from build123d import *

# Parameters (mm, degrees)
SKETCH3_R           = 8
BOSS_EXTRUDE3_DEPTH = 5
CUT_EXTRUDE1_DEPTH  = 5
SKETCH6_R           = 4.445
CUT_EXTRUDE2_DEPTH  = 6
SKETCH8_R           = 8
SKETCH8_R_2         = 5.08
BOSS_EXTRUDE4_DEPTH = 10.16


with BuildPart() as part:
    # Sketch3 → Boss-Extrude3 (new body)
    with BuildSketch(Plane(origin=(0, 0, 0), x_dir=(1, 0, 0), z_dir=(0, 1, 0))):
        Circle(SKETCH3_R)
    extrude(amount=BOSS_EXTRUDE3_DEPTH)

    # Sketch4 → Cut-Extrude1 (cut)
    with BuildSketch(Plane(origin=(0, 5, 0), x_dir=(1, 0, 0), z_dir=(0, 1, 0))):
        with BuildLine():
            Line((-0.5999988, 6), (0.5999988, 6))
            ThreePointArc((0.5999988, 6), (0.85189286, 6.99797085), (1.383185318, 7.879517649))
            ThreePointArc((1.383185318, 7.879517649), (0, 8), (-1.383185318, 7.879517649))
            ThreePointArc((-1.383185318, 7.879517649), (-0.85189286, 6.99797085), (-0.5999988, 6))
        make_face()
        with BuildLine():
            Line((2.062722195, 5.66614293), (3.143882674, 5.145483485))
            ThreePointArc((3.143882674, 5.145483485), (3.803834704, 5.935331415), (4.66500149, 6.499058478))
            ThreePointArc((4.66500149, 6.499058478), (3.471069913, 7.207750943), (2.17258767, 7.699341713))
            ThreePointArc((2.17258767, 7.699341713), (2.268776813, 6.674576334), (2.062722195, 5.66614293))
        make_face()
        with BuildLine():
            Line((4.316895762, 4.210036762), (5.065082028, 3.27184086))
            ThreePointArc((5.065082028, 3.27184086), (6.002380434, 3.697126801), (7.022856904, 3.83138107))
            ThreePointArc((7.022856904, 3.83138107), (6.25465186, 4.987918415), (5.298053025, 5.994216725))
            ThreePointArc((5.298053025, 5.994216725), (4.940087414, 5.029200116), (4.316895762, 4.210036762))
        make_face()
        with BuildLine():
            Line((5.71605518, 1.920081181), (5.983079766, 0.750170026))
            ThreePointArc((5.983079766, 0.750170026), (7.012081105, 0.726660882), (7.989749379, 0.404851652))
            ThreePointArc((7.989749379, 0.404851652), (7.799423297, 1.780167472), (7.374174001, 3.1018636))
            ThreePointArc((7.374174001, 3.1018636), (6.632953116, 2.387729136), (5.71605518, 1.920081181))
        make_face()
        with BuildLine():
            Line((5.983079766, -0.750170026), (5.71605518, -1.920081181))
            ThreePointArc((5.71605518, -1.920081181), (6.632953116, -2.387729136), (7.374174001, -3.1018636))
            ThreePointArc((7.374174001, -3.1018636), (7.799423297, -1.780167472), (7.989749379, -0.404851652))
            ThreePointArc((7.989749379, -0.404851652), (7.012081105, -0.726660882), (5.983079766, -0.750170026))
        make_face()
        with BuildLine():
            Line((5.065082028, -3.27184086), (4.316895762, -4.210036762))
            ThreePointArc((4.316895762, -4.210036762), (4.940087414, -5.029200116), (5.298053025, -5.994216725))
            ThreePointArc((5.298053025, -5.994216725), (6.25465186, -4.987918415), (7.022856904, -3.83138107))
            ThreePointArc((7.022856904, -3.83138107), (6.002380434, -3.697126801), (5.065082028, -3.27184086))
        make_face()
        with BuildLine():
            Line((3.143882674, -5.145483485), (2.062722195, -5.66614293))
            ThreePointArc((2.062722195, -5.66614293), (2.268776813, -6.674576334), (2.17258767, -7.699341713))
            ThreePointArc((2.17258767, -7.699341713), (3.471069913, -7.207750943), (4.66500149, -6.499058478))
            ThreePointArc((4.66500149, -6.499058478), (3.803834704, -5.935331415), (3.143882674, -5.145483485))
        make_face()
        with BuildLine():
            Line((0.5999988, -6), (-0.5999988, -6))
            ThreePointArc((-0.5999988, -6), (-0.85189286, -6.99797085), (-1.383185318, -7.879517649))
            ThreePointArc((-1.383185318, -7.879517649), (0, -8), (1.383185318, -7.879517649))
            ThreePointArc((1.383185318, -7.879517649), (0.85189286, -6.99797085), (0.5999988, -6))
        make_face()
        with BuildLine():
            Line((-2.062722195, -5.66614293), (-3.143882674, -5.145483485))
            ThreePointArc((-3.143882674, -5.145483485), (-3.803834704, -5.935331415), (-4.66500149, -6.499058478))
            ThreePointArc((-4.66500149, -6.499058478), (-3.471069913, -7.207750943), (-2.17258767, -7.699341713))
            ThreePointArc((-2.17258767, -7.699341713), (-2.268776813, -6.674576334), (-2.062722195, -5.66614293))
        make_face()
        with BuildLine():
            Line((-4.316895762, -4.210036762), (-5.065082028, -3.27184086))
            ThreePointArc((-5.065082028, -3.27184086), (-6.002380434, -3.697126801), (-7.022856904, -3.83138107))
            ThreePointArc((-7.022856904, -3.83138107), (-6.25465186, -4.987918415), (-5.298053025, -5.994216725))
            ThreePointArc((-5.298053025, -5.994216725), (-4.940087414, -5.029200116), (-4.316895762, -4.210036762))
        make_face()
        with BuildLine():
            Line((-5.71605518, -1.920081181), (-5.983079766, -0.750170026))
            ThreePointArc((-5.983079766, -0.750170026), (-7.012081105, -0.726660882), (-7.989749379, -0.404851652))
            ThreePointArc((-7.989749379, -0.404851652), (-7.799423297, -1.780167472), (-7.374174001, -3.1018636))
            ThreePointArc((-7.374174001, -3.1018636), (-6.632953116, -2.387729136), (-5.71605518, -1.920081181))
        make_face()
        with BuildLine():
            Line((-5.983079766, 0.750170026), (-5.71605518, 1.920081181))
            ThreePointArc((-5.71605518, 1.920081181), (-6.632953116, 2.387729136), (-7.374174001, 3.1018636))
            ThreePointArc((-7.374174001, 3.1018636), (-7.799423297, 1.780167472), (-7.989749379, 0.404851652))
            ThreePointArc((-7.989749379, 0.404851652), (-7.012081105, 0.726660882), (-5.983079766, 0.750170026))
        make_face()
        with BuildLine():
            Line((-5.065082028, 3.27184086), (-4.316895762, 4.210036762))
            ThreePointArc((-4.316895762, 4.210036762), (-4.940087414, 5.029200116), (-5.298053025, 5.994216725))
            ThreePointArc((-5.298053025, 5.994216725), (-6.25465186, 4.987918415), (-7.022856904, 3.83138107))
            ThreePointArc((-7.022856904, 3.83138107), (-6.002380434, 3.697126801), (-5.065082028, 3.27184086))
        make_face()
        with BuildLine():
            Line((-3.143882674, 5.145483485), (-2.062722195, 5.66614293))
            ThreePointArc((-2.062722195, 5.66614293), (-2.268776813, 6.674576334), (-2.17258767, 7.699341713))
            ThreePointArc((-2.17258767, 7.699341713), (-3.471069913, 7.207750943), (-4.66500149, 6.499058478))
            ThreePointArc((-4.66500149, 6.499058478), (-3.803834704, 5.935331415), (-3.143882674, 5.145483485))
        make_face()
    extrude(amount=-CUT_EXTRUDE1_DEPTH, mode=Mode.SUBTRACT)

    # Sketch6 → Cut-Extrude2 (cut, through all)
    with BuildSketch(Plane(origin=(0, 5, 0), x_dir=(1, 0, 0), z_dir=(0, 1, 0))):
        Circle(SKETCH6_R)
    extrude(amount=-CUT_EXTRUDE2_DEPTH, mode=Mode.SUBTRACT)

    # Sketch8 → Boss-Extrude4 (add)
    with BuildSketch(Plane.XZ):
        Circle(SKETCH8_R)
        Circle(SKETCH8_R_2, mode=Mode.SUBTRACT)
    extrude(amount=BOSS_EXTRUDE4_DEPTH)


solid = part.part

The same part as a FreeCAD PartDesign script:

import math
import FreeCAD as App
import Part
import Sketcher

V = App.Vector

doc = App.newDocument("Part")
body = doc.addObject("PartDesign::Body", "Body")

# Sketch on XZ plane
sketch1 = doc.addObject("Sketcher::SketchObject", "Sketch")
body.addObject(sketch1)
sketch1.AttachmentSupport = (doc.XZ_Plane, [""])
sketch1.MapMode = "FlatFace"
sketch1.addGeometry(Part.Circle(V(0, 0, 0), V(0, 0, 1), 8), False)
sketch1.addConstraint([
    Sketcher.Constraint("Coincident", 0, 3, -1, 1),
    Sketcher.Constraint("Diameter", 0, 16.0),
])
pad1 = doc.addObject("PartDesign::Pad", "Pad")
body.addObject(pad1)
pad1.Profile = sketch1
pad1.Length = 5
pad1.Reversed = True

# Sketch on XZ plane
sketch2 = doc.addObject("Sketcher::SketchObject", "Sketch001")
body.addObject(sketch2)
sketch2.AttachmentSupport = (doc.XZ_Plane, [""])
sketch2.MapMode = "FlatFace"
sketch2.AttachmentOffset = App.Placement(V(0, 0, -5), App.Rotation())
sketch2.addGeometry([
    Part.LineSegment(V(-0.599999, -6, 0), V(0.599999, -6, 0)),  # 0
    Part.ArcOfCircle(Part.Circle(V(4.082629, -5.651738, 0), V(0, 0, 1), 3.5), math.radians(-174.289418), math.radians(-140.468038)),  # 1
    Part.ArcOfCircle(Part.Circle(V(0, 0, 0), V(0, 0, 1), 8), math.radians(-99.956367), math.radians(-80.043633)),  # 2
    Part.ArcOfCircle(Part.Circle(V(-4.082629, -5.651738, 0), V(0, 0, 1), 3.5), math.radians(-39.531962), math.radians(-5.710582)),  # 3
    Part.LineSegment(V(2.062722, -5.666143, 0), V(3.143883, -5.145483, 0)),  # 4
    Part.ArcOfCircle(Part.Circle(V(6.130519, -3.320653, 0), V(0, 0, 1), 3.5), math.radians(-148.575132), math.radians(-114.753752)),  # 5
    Part.ArcOfCircle(Part.Circle(V(0, 0, 0), V(0, 0, 1), 8), math.radians(-74.242082), math.radians(-54.329347)),  # 6
    Part.ArcOfCircle(Part.Circle(V(-1.226125, -6.863426, 0), V(0, 0, 1), 3.5), math.radians(-13.817676), math.radians(20.003704)),  # 7
    Part.LineSegment(V(4.316896, -4.210037, 0), V(5.065082, -3.271841, 0)),  # 8
    Part.ArcOfCircle(Part.Circle(V(6.964184, -0.331873, 0), V(0, 0, 1), 3.5), math.radians(-122.860847), math.radians(-89.039467)),  # 9
    Part.ArcOfCircle(Part.Circle(V(0, 0, 0), V(0, 0, 1), 8), math.radians(-48.527796), math.radians(-28.615061)),  # 10
    Part.ArcOfCircle(Part.Circle(V(1.873229, -6.715729, 0), V(0, 0, 1), 3.5), math.radians(11.89661), math.radians(45.71799)),  # 11
    Part.LineSegment(V(5.716055, -1.920081, 0), V(5.98308, -0.75017, 0)),  # 12
    Part.ArcOfCircle(Part.Circle(V(6.418507, 2.722639, 0), V(0, 0, 1), 3.5), math.radians(-97.146561), math.radians(-63.325181)),  # 13
    Part.ArcOfCircle(Part.Circle(V(0, 0, 0), V(0, 0, 1), 8), math.radians(-22.81351), math.radians(-2.900775)),  # 14
    Part.ArcOfCircle(Part.Circle(V(4.601566, -5.237899, 0), V(0, 0, 1), 3.5), math.radians(37.610895), math.radians(71.432275)),  # 15
    Part.LineSegment(V(5.98308, 0.75017, 0), V(5.716055, 1.920081, 0)),  # 16
    Part.ArcOfCircle(Part.Circle(V(4.601566, 5.237899, 0), V(0, 0, 1), 3.5), math.radians(-71.432275), math.radians(-37.610895)),  # 17
    Part.ArcOfCircle(Part.Circle(V(0, 0, 0), V(0, 0, 1), 8), math.radians(2.900775), math.radians(22.81351)),  # 18
    Part.ArcOfCircle(Part.Circle(V(6.418507, -2.722639, 0), V(0, 0, 1), 3.5), math.radians(63.325181), math.radians(97.146561)),  # 19
    Part.LineSegment(V(5.065082, 3.271841, 0), V(4.316896, 4.210037, 0)),  # 20
    Part.ArcOfCircle(Part.Circle(V(1.873229, 6.715729, 0), V(0, 0, 1), 3.5), math.radians(-45.71799), math.radians(-11.89661)),  # 21
    Part.ArcOfCircle(Part.Circle(V(0, 0, 0), V(0, 0, 1), 8), math.radians(28.615061), math.radians(48.527796)),  # 22
    Part.ArcOfCircle(Part.Circle(V(6.964184, 0.331873, 0), V(0, 0, 1), 3.5), math.radians(89.039467), math.radians(122.860847)),  # 23
    Part.LineSegment(V(3.143883, 5.145483, 0), V(2.062722, 5.666143, 0)),  # 24
    Part.ArcOfCircle(Part.Circle(V(-1.226125, 6.863426, 0), V(0, 0, 1), 3.5), math.radians(-20.003704), math.radians(13.817676)),  # 25
    Part.ArcOfCircle(Part.Circle(V(0, 0, 0), V(0, 0, 1), 8), math.radians(54.329347), math.radians(74.242082)),  # 26
    Part.ArcOfCircle(Part.Circle(V(6.130519, 3.320653, 0), V(0, 0, 1), 3.5), math.radians(114.753752), math.radians(148.575132)),  # 27
    Part.LineSegment(V(0.599999, 6, 0), V(-0.599999, 6, 0)),  # 28
    Part.ArcOfCircle(Part.Circle(V(-4.082629, 5.651738, 0), V(0, 0, 1), 3.5), math.radians(5.710582), math.radians(39.531962)),  # 29
    Part.ArcOfCircle(Part.Circle(V(0, 0, 0), V(0, 0, 1), 8), math.radians(80.043633), math.radians(99.956367)),  # 30
    Part.ArcOfCircle(Part.Circle(V(4.082629, 5.651738, 0), V(0, 0, 1), 3.5), math.radians(140.468038), math.radians(174.289418)),  # 31
    Part.LineSegment(V(-2.062722, 5.666143, 0), V(-3.143883, 5.145483, 0)),  # 32
    Part.ArcOfCircle(Part.Circle(V(-6.130519, 3.320653, 0), V(0, 0, 1), 3.5), math.radians(31.424868), math.radians(65.246248)),  # 33
    Part.ArcOfCircle(Part.Circle(V(0, 0, 0), V(0, 0, 1), 8), math.radians(105.757918), math.radians(125.670653)),  # 34
    Part.ArcOfCircle(Part.Circle(V(1.226125, 6.863426, 0), V(0, 0, 1), 3.5), math.radians(166.182324), math.radians(200.003704)),  # 35
    Part.LineSegment(V(-4.316896, 4.210037, 0), V(-5.065082, 3.271841, 0)),  # 36
    Part.ArcOfCircle(Part.Circle(V(-6.964184, 0.331873, 0), V(0, 0, 1), 3.5), math.radians(57.139153), math.radians(90.960533)),  # 37
    Part.ArcOfCircle(Part.Circle(V(0, 0, 0), V(0, 0, 1), 8), math.radians(131.472204), math.radians(151.384939)),  # 38
    Part.ArcOfCircle(Part.Circle(V(-1.873229, 6.715729, 0), V(0, 0, 1), 3.5), math.radians(-168.10339), math.radians(-134.28201)),  # 39
    Part.LineSegment(V(-5.716055, 1.920081, 0), V(-5.98308, 0.75017, 0)),  # 40
    Part.ArcOfCircle(Part.Circle(V(-6.418507, -2.722639, 0), V(0, 0, 1), 3.5), math.radians(82.853439), math.radians(116.674819)),  # 41
    Part.ArcOfCircle(Part.Circle(V(0, 0, 0), V(0, 0, 1), 8), math.radians(157.18649), math.radians(177.099225)),  # 42
    Part.ArcOfCircle(Part.Circle(V(-4.601566, 5.237899, 0), V(0, 0, 1), 3.5), math.radians(-142.389105), math.radians(-108.567725)),  # 43
    Part.LineSegment(V(-5.98308, -0.75017, 0), V(-5.716055, -1.920081, 0)),  # 44
    Part.ArcOfCircle(Part.Circle(V(-4.601566, -5.237899, 0), V(0, 0, 1), 3.5), math.radians(108.567725), math.radians(142.389105)),  # 45
    Part.ArcOfCircle(Part.Circle(V(0, 0, 0), V(0, 0, 1), 8), math.radians(-177.099225), math.radians(-157.18649)),  # 46
    Part.ArcOfCircle(Part.Circle(V(-6.418507, 2.722639, 0), V(0, 0, 1), 3.5), math.radians(-116.674819), math.radians(-82.853439)),  # 47
    Part.LineSegment(V(-5.065082, -3.271841, 0), V(-4.316896, -4.210037, 0)),  # 48
    Part.ArcOfCircle(Part.Circle(V(-1.873229, -6.715729, 0), V(0, 0, 1), 3.5), math.radians(134.28201), math.radians(168.10339)),  # 49
    Part.ArcOfCircle(Part.Circle(V(0, 0, 0), V(0, 0, 1), 8), math.radians(-151.384939), math.radians(-131.472204)),  # 50
    Part.ArcOfCircle(Part.Circle(V(-6.964184, -0.331873, 0), V(0, 0, 1), 3.5), math.radians(-90.960533), math.radians(-57.139153)),  # 51
    Part.LineSegment(V(-3.143883, -5.145483, 0), V(-2.062722, -5.666143, 0)),  # 52
    Part.ArcOfCircle(Part.Circle(V(1.226125, -6.863426, 0), V(0, 0, 1), 3.5), math.radians(159.996296), math.radians(193.817676)),  # 53
    Part.ArcOfCircle(Part.Circle(V(0, 0, 0), V(0, 0, 1), 8), math.radians(-125.670653), math.radians(-105.757918)),  # 54
    Part.ArcOfCircle(Part.Circle(V(-6.130519, -3.320653, 0), V(0, 0, 1), 3.5), math.radians(-65.246248), math.radians(-31.424868)),  # 55
], False)
sketch2.addConstraint([
    Sketcher.Constraint("Coincident", 0, 2, 1, 1),
    Sketcher.Constraint("Coincident", 1, 2, 2, 2),
    Sketcher.Constraint("Coincident", 2, 1, 3, 1),
    Sketcher.Constraint("Coincident", 3, 2, 0, 1),
    Sketcher.Constraint("Coincident", 4, 2, 5, 1),
    Sketcher.Constraint("Coincident", 5, 2, 6, 2),
    Sketcher.Constraint("Coincident", 6, 1, 7, 1),
    Sketcher.Constraint("Coincident", 7, 2, 4, 1),
    Sketcher.Constraint("Coincident", 8, 2, 9, 1),
    Sketcher.Constraint("Coincident", 9, 2, 10, 2),
    Sketcher.Constraint("Coincident", 10, 1, 11, 1),
    Sketcher.Constraint("Coincident", 11, 2, 8, 1),
    Sketcher.Constraint("Coincident", 12, 2, 13, 1),
    Sketcher.Constraint("Coincident", 13, 2, 14, 2),
    Sketcher.Constraint("Coincident", 14, 1, 15, 1),
    Sketcher.Constraint("Coincident", 15, 2, 12, 1),
    Sketcher.Constraint("Coincident", 16, 2, 17, 1),
    Sketcher.Constraint("Coincident", 17, 2, 18, 2),
    Sketcher.Constraint("Coincident", 18, 1, 19, 1),
    Sketcher.Constraint("Coincident", 19, 2, 16, 1),
    Sketcher.Constraint("Coincident", 20, 2, 21, 1),
    Sketcher.Constraint("Coincident", 21, 2, 22, 2),
    Sketcher.Constraint("Coincident", 22, 1, 23, 1),
    Sketcher.Constraint("Coincident", 23, 2, 20, 1),
    Sketcher.Constraint("Coincident", 24, 2, 25, 1),
    Sketcher.Constraint("Coincident", 25, 2, 26, 2),
    Sketcher.Constraint("Coincident", 26, 1, 27, 1),
    Sketcher.Constraint("Coincident", 27, 2, 24, 1),
    Sketcher.Constraint("Coincident", 28, 2, 29, 1),
    Sketcher.Constraint("Coincident", 29, 2, 30, 2),
    Sketcher.Constraint("Coincident", 30, 1, 31, 1),
    Sketcher.Constraint("Coincident", 31, 2, 28, 1),
    Sketcher.Constraint("Coincident", 32, 2, 33, 1),
    Sketcher.Constraint("Coincident", 33, 2, 34, 2),
    Sketcher.Constraint("Coincident", 34, 1, 35, 1),
    Sketcher.Constraint("Coincident", 35, 2, 32, 1),
    Sketcher.Constraint("Coincident", 36, 2, 37, 1),
    Sketcher.Constraint("Coincident", 37, 2, 38, 2),
    Sketcher.Constraint("Coincident", 38, 1, 39, 1),
    Sketcher.Constraint("Coincident", 39, 2, 36, 1),
    Sketcher.Constraint("Coincident", 40, 2, 41, 1),
    Sketcher.Constraint("Coincident", 41, 2, 42, 2),
    Sketcher.Constraint("Coincident", 42, 1, 43, 1),
    Sketcher.Constraint("Coincident", 43, 2, 40, 1),
    Sketcher.Constraint("Coincident", 44, 2, 45, 1),
    Sketcher.Constraint("Coincident", 45, 2, 46, 2),
    Sketcher.Constraint("Coincident", 46, 1, 47, 1),
    Sketcher.Constraint("Coincident", 47, 2, 44, 1),
    Sketcher.Constraint("Coincident", 48, 2, 49, 1),
    Sketcher.Constraint("Coincident", 49, 2, 50, 2),
    Sketcher.Constraint("Coincident", 50, 1, 51, 1),
    Sketcher.Constraint("Coincident", 51, 2, 48, 1),
    Sketcher.Constraint("Coincident", 52, 2, 53, 1),
    Sketcher.Constraint("Coincident", 53, 2, 54, 2),
    Sketcher.Constraint("Coincident", 54, 1, 55, 1),
    Sketcher.Constraint("Coincident", 55, 2, 52, 1),
    Sketcher.Constraint("Horizontal", 0),
    Sketcher.Constraint("Horizontal", 28),
    Sketcher.Constraint("Coincident", 2, 3, -1, 1),
    Sketcher.Constraint("Coincident", 6, 3, -1, 1),
    Sketcher.Constraint("Coincident", 10, 3, -1, 1),
    Sketcher.Constraint("Coincident", 14, 3, -1, 1),
    Sketcher.Constraint("Coincident", 18, 3, -1, 1),
    Sketcher.Constraint("Coincident", 22, 3, -1, 1),
    Sketcher.Constraint("Coincident", 26, 3, -1, 1),
    Sketcher.Constraint("Coincident", 30, 3, -1, 1),
    Sketcher.Constraint("Coincident", 34, 3, -1, 1),
    Sketcher.Constraint("Coincident", 38, 3, -1, 1),
    Sketcher.Constraint("Coincident", 42, 3, -1, 1),
    Sketcher.Constraint("Coincident", 46, 3, -1, 1),
    Sketcher.Constraint("Coincident", 50, 3, -1, 1),
    Sketcher.Constraint("Coincident", 54, 3, -1, 1),
    Sketcher.Constraint("Equal", 1, 3),
    Sketcher.Constraint("Equal", 3, 5),
    Sketcher.Constraint("Equal", 2, 6),
    Sketcher.Constraint("Equal", 5, 7),
    Sketcher.Constraint("Equal", 7, 9),
    Sketcher.Constraint("Equal", 6, 10),
    Sketcher.Constraint("Equal", 9, 11),
    Sketcher.Constraint("Equal", 11, 13),
    Sketcher.Constraint("Equal", 10, 14),
    Sketcher.Constraint("Equal", 13, 15),
    Sketcher.Constraint("Equal", 15, 17),
    Sketcher.Constraint("Equal", 14, 18),
    Sketcher.Constraint("Equal", 17, 19),
    Sketcher.Constraint("Equal", 19, 21),
    Sketcher.Constraint("Equal", 18, 22),
    Sketcher.Constraint("Equal", 21, 23),
    Sketcher.Constraint("Equal", 23, 25),
    Sketcher.Constraint("Equal", 22, 26),
    Sketcher.Constraint("Equal", 25, 27),
    Sketcher.Constraint("Equal", 27, 29),
    Sketcher.Constraint("Equal", 26, 30),
    Sketcher.Constraint("Equal", 29, 31),
    Sketcher.Constraint("Equal", 31, 33),
    Sketcher.Constraint("Equal", 30, 34),
    Sketcher.Constraint("Equal", 33, 35),
    Sketcher.Constraint("Equal", 35, 37),
    Sketcher.Constraint("Equal", 34, 38),
    Sketcher.Constraint("Equal", 37, 39),
    Sketcher.Constraint("Equal", 39, 41),
    Sketcher.Constraint("Equal", 38, 42),
    Sketcher.Constraint("Equal", 41, 43),
    Sketcher.Constraint("Equal", 43, 45),
    Sketcher.Constraint("Equal", 42, 46),
    Sketcher.Constraint("Equal", 45, 47),
    Sketcher.Constraint("Equal", 47, 49),
    Sketcher.Constraint("Equal", 46, 50),
    Sketcher.Constraint("Equal", 49, 51),
    Sketcher.Constraint("Equal", 51, 53),
    Sketcher.Constraint("Equal", 50, 54),
    Sketcher.Constraint("Equal", 53, 55),
    Sketcher.Constraint("Symmetric", 1, 3, 29, 3, -1, 1),
    Sketcher.Constraint("Symmetric", 3, 3, 31, 3, -1, 1),
    Sketcher.Constraint("Symmetric", 5, 3, 33, 3, -1, 1),
    Sketcher.Constraint("Symmetric", 7, 3, 35, 3, -1, 1),
    Sketcher.Constraint("Symmetric", 9, 3, 37, 3, -1, 1),
    Sketcher.Constraint("Symmetric", 11, 3, 39, 3, -1, 1),
    Sketcher.Constraint("Symmetric", 13, 3, 41, 3, -1, 1),
    Sketcher.Constraint("Symmetric", 15, 3, 43, 3, -1, 1),
    Sketcher.Constraint("Symmetric", 17, 3, 45, 3, -1, 1),
    Sketcher.Constraint("Symmetric", 19, 3, 47, 3, -1, 1),
    Sketcher.Constraint("Symmetric", 21, 3, 49, 3, -1, 1),
    Sketcher.Constraint("Symmetric", 23, 3, 51, 3, -1, 1),
    Sketcher.Constraint("Symmetric", 25, 3, 53, 3, -1, 1),
    Sketcher.Constraint("Symmetric", 27, 3, 55, 3, -1, 1),
    Sketcher.Constraint("Symmetric", 1, 3, 3, 3, -2),
    Sketcher.Constraint("Symmetric", 27, 3, 33, 3, -2),
    Sketcher.Constraint("Symmetric", 25, 3, 35, 3, -2),
    Sketcher.Constraint("Symmetric", 23, 3, 37, 3, -2),
    Sketcher.Constraint("Symmetric", 21, 3, 39, 3, -2),
    Sketcher.Constraint("Symmetric", 19, 3, 41, 3, -2),
    Sketcher.Constraint("Symmetric", 17, 3, 43, 3, -2),
    Sketcher.Constraint("Parallel", 4, 32),
    Sketcher.Constraint("Parallel", 8, 36),
    Sketcher.Constraint("Parallel", 12, 40),
    Sketcher.Constraint("Parallel", 16, 44),
    Sketcher.Constraint("Parallel", 20, 48),
    Sketcher.Constraint("Parallel", 24, 52),
    Sketcher.Constraint("Horizontal", 27, 2, 32, 2),
    Sketcher.Constraint("Horizontal", 24, 2, 35, 2),
    Sketcher.Constraint("Horizontal", 23, 2, 36, 2),
    Sketcher.Constraint("Horizontal", 20, 2, 39, 2),
    Sketcher.Constraint("Horizontal", 19, 2, 40, 2),
    Sketcher.Constraint("Horizontal", 16, 2, 43, 2),
    Sketcher.Constraint("Horizontal", 15, 2, 44, 2),
    Sketcher.Constraint("Horizontal", 11, 2, 48, 2),
    Sketcher.Constraint("Horizontal", 7, 2, 52, 2),
    Sketcher.Constraint("Vertical", 15, 2, 16, 2),
    Sketcher.Constraint("Vertical", 11, 2, 20, 2),
    Sketcher.Constraint("Vertical", 7, 2, 24, 2),
    Sketcher.Constraint("Vertical", 3, 2, 28, 2),
    Sketcher.Constraint("Equal", 4, 8),
    Sketcher.Constraint("Equal", 8, 12),
    Sketcher.Constraint("Radius", 2, 8.0),
    Sketcher.Constraint("Radius", 1, 3.5),
    Sketcher.Constraint("DistanceY", 0, 2, -1, 1, 6.0),
    Sketcher.Constraint("DistanceX", -1, 1, 0, 2, 0.599999),
    Sketcher.Constraint("DistanceX", -1, 1, 5, 2, 4.665001),
    Sketcher.Constraint("DistanceY", 15, 3, -1, 1, 5.237899),
    Sketcher.Constraint("DistanceX", -1, 1, 1, 3, 4.082629),
    Sketcher.Constraint("DistanceX", -1, 1, 5, 3, 6.130519),
    Sketcher.Constraint("DistanceX", -1, 1, 11, 3, 1.873229),
    Sketcher.Constraint("DistanceY", 11, 3, -1, 1, 6.715729),
    Sketcher.Constraint("DistanceY", -1, 1, 13, 3, 2.722639),
    Sketcher.Constraint("DistanceY", 6, 1, -1, 1, 7.699342),
    Sketcher.Constraint("DistanceY", 8, 2, -1, 1, 3.271841),
    Sketcher.Constraint("DistanceY", 9, 2, -1, 1, 3.831381),
    Sketcher.Constraint("DistanceX", -1, 1, 12, 2, 5.98308),
    Sketcher.Constraint("DistanceY", 12, 2, -1, 1, 0.75017),
    Sketcher.Constraint("DistanceY", 15, 2, -1, 1, 1.920081),
    Sketcher.Constraint("Distance", 4, 1.199998),
    Sketcher.Constraint("DistanceX", 7, 3, -1, 1, 1.226125),
    Sketcher.Constraint("DistanceX", -1, 1, 9, 3, 6.964184),
    Sketcher.Constraint("DistanceX", -1, 1, 4, 2, 3.143883),
])
pocket1 = doc.addObject("PartDesign::Pocket", "Pocket")
body.addObject(pocket1)
pocket1.Profile = sketch2
pocket1.Length = 5
pocket1.Reversed = True

# Sketch on XZ plane
sketch3 = doc.addObject("Sketcher::SketchObject", "Sketch002")
body.addObject(sketch3)
sketch3.AttachmentSupport = (doc.XZ_Plane, [""])
sketch3.MapMode = "FlatFace"
sketch3.AttachmentOffset = App.Placement(V(0, 0, -5), App.Rotation())
sketch3.addGeometry(Part.Circle(V(0, 0, 0), V(0, 0, 1), 4.445), False)
sketch3.addConstraint([
    Sketcher.Constraint("Coincident", 0, 3, -1, 1),
    Sketcher.Constraint("Diameter", 0, 8.89),
])
pocket2 = doc.addObject("PartDesign::Pocket", "Pocket001")
body.addObject(pocket2)
pocket2.Profile = sketch3
pocket2.Type = "ThroughAll"
pocket2.Reversed = True

# Sketch on XZ plane
sketch4 = doc.addObject("Sketcher::SketchObject", "Sketch003")
body.addObject(sketch4)
sketch4.AttachmentSupport = (doc.XZ_Plane, [""])
sketch4.MapMode = "FlatFace"
sketch4.addGeometry([
    Part.Circle(V(0, 0, 0), V(0, 0, 1), 8),
    Part.Circle(V(0, 0, 0), V(0, 0, 1), 5.08),
], False)
sketch4.addConstraint([
    Sketcher.Constraint("Coincident", 0, 3, -1, 1),
    Sketcher.Constraint("Coincident", 1, 3, -1, 1),
    Sketcher.Constraint("Diameter", 0, 16.0),
    Sketcher.Constraint("Diameter", 1, 10.16),
])
pad2 = doc.addObject("PartDesign::Pad", "Pad001")
body.addObject(pad2)
pad2.Profile = sketch4
pad2.Length = 10.16

doc.recompute()
